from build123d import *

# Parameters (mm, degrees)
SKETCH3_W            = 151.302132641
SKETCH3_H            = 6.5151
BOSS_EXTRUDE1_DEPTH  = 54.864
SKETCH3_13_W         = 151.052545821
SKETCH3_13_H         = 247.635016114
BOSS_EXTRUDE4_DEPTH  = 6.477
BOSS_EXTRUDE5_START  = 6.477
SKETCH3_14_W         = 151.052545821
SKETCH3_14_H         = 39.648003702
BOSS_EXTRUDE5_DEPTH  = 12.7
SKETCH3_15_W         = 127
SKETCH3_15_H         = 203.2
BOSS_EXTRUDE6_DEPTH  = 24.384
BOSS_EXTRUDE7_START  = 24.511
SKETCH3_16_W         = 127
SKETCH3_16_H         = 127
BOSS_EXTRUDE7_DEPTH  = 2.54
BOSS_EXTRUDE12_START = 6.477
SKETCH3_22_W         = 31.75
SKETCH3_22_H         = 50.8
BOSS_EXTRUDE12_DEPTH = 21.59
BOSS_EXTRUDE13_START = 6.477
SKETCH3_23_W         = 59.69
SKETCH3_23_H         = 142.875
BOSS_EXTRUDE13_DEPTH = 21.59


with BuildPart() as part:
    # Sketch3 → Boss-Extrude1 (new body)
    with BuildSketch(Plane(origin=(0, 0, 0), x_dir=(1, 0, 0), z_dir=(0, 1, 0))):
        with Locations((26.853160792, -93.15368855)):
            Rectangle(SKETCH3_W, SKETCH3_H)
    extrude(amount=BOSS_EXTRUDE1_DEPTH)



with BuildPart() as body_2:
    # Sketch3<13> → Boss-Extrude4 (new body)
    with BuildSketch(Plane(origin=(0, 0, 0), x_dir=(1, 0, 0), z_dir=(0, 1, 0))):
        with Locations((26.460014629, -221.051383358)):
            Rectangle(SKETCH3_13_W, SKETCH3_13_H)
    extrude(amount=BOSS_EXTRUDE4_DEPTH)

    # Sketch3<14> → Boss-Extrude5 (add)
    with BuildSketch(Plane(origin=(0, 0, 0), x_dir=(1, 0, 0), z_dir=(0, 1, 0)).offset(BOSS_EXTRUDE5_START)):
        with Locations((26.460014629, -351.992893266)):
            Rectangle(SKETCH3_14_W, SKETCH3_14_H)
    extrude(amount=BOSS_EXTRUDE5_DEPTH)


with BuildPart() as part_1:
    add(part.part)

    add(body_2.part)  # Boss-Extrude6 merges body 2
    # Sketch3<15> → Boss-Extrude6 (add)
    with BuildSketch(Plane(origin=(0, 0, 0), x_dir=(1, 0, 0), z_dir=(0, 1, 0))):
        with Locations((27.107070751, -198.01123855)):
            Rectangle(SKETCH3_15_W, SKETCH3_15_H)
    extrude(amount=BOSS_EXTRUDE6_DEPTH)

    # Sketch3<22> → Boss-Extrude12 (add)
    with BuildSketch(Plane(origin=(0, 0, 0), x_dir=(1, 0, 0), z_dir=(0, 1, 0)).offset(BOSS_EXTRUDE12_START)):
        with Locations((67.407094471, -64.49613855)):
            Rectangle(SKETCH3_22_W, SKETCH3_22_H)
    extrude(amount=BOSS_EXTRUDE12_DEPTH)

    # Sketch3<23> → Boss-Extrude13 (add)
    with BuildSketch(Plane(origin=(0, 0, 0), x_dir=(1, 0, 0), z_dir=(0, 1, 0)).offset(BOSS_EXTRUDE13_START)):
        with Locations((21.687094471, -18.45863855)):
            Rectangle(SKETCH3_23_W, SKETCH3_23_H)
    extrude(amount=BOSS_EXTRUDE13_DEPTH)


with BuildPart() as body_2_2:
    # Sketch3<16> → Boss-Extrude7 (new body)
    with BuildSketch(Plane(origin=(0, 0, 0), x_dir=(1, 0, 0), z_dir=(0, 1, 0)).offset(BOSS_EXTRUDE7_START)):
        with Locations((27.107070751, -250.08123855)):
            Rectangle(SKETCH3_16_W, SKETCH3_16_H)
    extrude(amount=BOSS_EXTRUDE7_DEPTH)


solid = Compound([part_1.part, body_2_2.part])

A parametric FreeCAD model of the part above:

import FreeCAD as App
import Part
import Sketcher

V = App.Vector
Q = App.Units.Quantity


def add_polygon(sketch, points):
    """Adds a closed chain of lines whose ends are joined by coincident constraints."""
    first, n = sketch.GeometryCount, len(points)
    for a, b in zip(points, points[1:] + points[:1]):
        sketch.addGeometry(Part.LineSegment(App.Vector(*a, 0), App.Vector(*b, 0)), False)
    for i in range(n):
        sketch.addConstraint(Sketcher.Constraint("Coincident", first + i, 2, first + (i + 1) % n, 1))

doc = App.newDocument("Part")
body = doc.addObject("PartDesign::Body", "Body")

# Sketch on XZ plane
sketch1 = body.newObject("Sketcher::SketchObject", "Sketch")
sketch1.AttachmentSupport = (doc.getObject("XZ_Plane"), [""])
sketch1.MapMode = "FlatFace"
add_polygon(sketch1, [(-49, 90), (-49, 96), (103, 96), (103, 90)])  # lines 0-3
sketch1.addConstraint([
    Sketcher.Constraint("Vertical", 0),
    Sketcher.Constraint("Horizontal", 1),
    Sketcher.Constraint("Vertical", 2),
    Sketcher.Constraint("Horizontal", 3),
    Sketcher.Constraint("DistanceY", 0, 1, 0, 2, Q("0.2565 in")),
    Sketcher.Constraint("DistanceX", 1, 1, 1, 2, 151.302133),
    Sketcher.Constraint("DistanceY", -1, 1, 0, 2, 96.411239),
    Sketcher.Constraint("DistanceX", 0, 2, -1, 1, 48.797906),
])
pad1 = body.newObject("PartDesign::Pad", "Pad")
pad1.Profile = sketch1
pad1.Length = Q("2.16 in")
pad1.Reversed = True
body2 = doc.addObject("PartDesign::Body", "Body001")

# Sketch on XZ plane
sketch2 = body2.newObject("Sketcher::SketchObject", "Sketch001")
sketch2.AttachmentSupport = (doc.getObject("XZ_Plane001"), [""])
sketch2.MapMode = "FlatFace"
add_polygon(sketch2, [(-49, 97), (-49, 345), (102, 345), (102, 97)])  # lines 0-3
sketch2.addConstraint([
    Sketcher.Constraint("Vertical", 0),
    Sketcher.Constraint("Horizontal", 1),
    Sketcher.Constraint("Vertical", 2),
    Sketcher.Constraint("Horizontal", 3),
    Sketcher.Constraint("DistanceX", 1, 1, 1, 2, 151.052546),
    Sketcher.Constraint("DistanceY", 0, 1, 0, 2, 247.635016),
    Sketcher.Constraint("DistanceX", 0, 2, -1, 1, 49.066258),
    Sketcher.Constraint("DistanceY", -1, 1, 0, 2, 344.868891),
])
pad2 = body2.newObject("PartDesign::Pad", "Pad001")
pad2.Profile = sketch2
pad2.Length = Q("0.255 in")
pad2.Reversed = True

# Sketch on XZ plane
sketch3 = body2.newObject("Sketcher::SketchObject", "Sketch002")
sketch3.AttachmentSupport = (doc.getObject("XZ_Plane001"), [""])
sketch3.MapMode = "FlatFace"
sketch3.AttachmentOffset = App.Placement(V(0, 0, -0.255 * 25.4), App.Rotation())
add_polygon(sketch3, [(-49, 332), (-49, 372), (102, 372), (102, 332)])  # lines 0-3
sketch3.addConstraint([
    Sketcher.Constraint("Vertical", 0),
    Sketcher.Constraint("Horizontal", 1),
    Sketcher.Constraint("Vertical", 2),
    Sketcher.Constraint("Horizontal", 3),
    Sketcher.Constraint("DistanceX", 1, 1, 1, 2, 151.052546),
    Sketcher.Constraint("DistanceY", 0, 1, 0, 2, 39.648004),
    Sketcher.Constraint("DistanceX", 0, 2, -1, 1, 49.066258),
    Sketcher.Constraint("DistanceY", -1, 1, 2, 2, 332.168891),
])
pad3 = body2.newObject("PartDesign::Pad", "Pad002")
pad3.Profile = sketch3
pad3.Length = Q("0.5 in")
pad3.Reversed = True
body.AllowCompound = True
doc.recompute()

boolean = body.newObject("PartDesign::Boolean", "Boolean")
boolean.Type = "Fuse"
boolean.addObjects([body2])

# Sketch on XZ plane
sketch4 = body.newObject("Sketcher::SketchObject", "Sketch003")
sketch4.AttachmentSupport = (doc.getObject("XZ_Plane"), [""])
sketch4.MapMode = "FlatFace"
add_polygon(sketch4, [(-36, 96), (-36, 300), (91, 300), (91, 96)])  # lines 0-3
sketch4.addConstraint([
    Sketcher.Constraint("Vertical", 0),
    Sketcher.Constraint("Horizontal", 1),
    Sketcher.Constraint("Vertical", 2),
    Sketcher.Constraint("Horizontal", 3),
    Sketcher.Constraint("DistanceX", 1, 1, 1, 2, Q("5 in")),
    Sketcher.Constraint("DistanceY", 0, 1, 0, 2, Q("8 in")),
    Sketcher.Constraint("DistanceX", 0, 2, -1, 1, 36.392929),
    Sketcher.Constraint("DistanceY", -1, 1, 0, 2, 299.611239),
])
pad4 = body.newObject("PartDesign::Pad", "Pad003")
pad4.Profile = sketch4
pad4.Length = Q("0.96 in")
pad4.Reversed = True

# Sketch on XZ plane
sketch5 = body.newObject("Sketcher::SketchObject", "Sketch004")
sketch5.AttachmentSupport = (doc.getObject("XZ_Plane"), [""])
sketch5.MapMode = "FlatFace"
sketch5.AttachmentOffset = App.Placement(V(0, 0, -0.255 * 25.4), App.Rotation())
add_polygon(sketch5, [(52, 39), (52, 90), (83, 90), (83, 39)])  # lines 0-3
sketch5.addConstraint([
    Sketcher.Constraint("Vertical", 0),
    Sketcher.Constraint("Horizontal", 1),
    Sketcher.Constraint("Vertical", 2),
    Sketcher.Constraint("Horizontal", 3),
    Sketcher.Constraint("DistanceY", 0, 1, 0, 2, Q("2 in")),
    Sketcher.Constraint("DistanceX", 1, 1, 1, 2, Q("1.25 in")),
    Sketcher.Constraint("DistanceY", -1, 1, 0, 2, 89.896139),
    Sketcher.Constraint("DistanceX", -1, 1, 0, 2, 51.532094),
])
pad5 = body.newObject("PartDesign::Pad", "Pad004")
pad5.Profile = sketch5
pad5.Length = Q("0.85 in")
pad5.Reversed = True

# Sketch on XZ plane
sketch6 = body.newObject("Sketcher::SketchObject", "Sketch005")
sketch6.AttachmentSupport = (doc.getObject("XZ_Plane"), [""])
sketch6.MapMode = "FlatFace"
sketch6.AttachmentOffset = App.Placement(V(0, 0, -0.255 * 25.4), App.Rotation())
add_polygon(sketch6, [(-8, -53), (-8, 90), (52, 90), (52, -53)])  # lines 0-3
sketch6.addConstraint([
    Sketcher.Constraint("Vertical", 0),
    Sketcher.Constraint("Horizontal", 1),
    Sketcher.Constraint("Vertical", 2),
    Sketcher.Constraint("Horizontal", 3),
    Sketcher.Constraint("DistanceX", 1, 1, 1, 2, Q("2.35 in")),
    Sketcher.Constraint("DistanceY", 0, 1, 0, 2, Q("5.625 in")),
    Sketcher.Constraint("DistanceY", -1, 1, 0, 2, 89.896139),
    Sketcher.Constraint("DistanceX", 0, 2, -1, 1, 8.157906),
])
pad6 = body.newObject("PartDesign::Pad", "Pad005")
pad6.Profile = sketch6
pad6.Length = Q("0.85 in")
pad6.Reversed = True
body3 = doc.addObject("PartDesign::Body", "Body002")

# Sketch on XZ plane
sketch7 = body3.newObject("Sketcher::SketchObject", "Sketch006")
sketch7.AttachmentSupport = (doc.getObject("XZ_Plane002"), [""])
sketch7.MapMode = "FlatFace"
sketch7.AttachmentOffset = App.Placement(V(0, 0, -0.965 * 25.4), App.Rotation())
add_polygon(sketch7, [(-36, 187), (-36, 314), (91, 314), (91, 187)])  # lines 0-3
sketch7.addConstraint([
    Sketcher.Constraint("Vertical", 0),
    Sketcher.Constraint("Horizontal", 1),
    Sketcher.Constraint("Vertical", 2),
    Sketcher.Constraint("Horizontal", 3),
    Sketcher.Constraint("Equal", 3, 0),
    Sketcher.Constraint("DistanceX", 1, 1, 1, 2, Q("5 in")),
    Sketcher.Constraint("DistanceX", 0, 2, -1, 1, 36.392929),
    Sketcher.Constraint("DistanceY", -1, 1, 0, 2, 313.581239),
])
pad7 = body3.newObject("PartDesign::Pad", "Pad006")
pad7.Profile = sketch7
pad7.Length = Q("0.1 in")
pad7.Reversed = True

doc.recompute()
